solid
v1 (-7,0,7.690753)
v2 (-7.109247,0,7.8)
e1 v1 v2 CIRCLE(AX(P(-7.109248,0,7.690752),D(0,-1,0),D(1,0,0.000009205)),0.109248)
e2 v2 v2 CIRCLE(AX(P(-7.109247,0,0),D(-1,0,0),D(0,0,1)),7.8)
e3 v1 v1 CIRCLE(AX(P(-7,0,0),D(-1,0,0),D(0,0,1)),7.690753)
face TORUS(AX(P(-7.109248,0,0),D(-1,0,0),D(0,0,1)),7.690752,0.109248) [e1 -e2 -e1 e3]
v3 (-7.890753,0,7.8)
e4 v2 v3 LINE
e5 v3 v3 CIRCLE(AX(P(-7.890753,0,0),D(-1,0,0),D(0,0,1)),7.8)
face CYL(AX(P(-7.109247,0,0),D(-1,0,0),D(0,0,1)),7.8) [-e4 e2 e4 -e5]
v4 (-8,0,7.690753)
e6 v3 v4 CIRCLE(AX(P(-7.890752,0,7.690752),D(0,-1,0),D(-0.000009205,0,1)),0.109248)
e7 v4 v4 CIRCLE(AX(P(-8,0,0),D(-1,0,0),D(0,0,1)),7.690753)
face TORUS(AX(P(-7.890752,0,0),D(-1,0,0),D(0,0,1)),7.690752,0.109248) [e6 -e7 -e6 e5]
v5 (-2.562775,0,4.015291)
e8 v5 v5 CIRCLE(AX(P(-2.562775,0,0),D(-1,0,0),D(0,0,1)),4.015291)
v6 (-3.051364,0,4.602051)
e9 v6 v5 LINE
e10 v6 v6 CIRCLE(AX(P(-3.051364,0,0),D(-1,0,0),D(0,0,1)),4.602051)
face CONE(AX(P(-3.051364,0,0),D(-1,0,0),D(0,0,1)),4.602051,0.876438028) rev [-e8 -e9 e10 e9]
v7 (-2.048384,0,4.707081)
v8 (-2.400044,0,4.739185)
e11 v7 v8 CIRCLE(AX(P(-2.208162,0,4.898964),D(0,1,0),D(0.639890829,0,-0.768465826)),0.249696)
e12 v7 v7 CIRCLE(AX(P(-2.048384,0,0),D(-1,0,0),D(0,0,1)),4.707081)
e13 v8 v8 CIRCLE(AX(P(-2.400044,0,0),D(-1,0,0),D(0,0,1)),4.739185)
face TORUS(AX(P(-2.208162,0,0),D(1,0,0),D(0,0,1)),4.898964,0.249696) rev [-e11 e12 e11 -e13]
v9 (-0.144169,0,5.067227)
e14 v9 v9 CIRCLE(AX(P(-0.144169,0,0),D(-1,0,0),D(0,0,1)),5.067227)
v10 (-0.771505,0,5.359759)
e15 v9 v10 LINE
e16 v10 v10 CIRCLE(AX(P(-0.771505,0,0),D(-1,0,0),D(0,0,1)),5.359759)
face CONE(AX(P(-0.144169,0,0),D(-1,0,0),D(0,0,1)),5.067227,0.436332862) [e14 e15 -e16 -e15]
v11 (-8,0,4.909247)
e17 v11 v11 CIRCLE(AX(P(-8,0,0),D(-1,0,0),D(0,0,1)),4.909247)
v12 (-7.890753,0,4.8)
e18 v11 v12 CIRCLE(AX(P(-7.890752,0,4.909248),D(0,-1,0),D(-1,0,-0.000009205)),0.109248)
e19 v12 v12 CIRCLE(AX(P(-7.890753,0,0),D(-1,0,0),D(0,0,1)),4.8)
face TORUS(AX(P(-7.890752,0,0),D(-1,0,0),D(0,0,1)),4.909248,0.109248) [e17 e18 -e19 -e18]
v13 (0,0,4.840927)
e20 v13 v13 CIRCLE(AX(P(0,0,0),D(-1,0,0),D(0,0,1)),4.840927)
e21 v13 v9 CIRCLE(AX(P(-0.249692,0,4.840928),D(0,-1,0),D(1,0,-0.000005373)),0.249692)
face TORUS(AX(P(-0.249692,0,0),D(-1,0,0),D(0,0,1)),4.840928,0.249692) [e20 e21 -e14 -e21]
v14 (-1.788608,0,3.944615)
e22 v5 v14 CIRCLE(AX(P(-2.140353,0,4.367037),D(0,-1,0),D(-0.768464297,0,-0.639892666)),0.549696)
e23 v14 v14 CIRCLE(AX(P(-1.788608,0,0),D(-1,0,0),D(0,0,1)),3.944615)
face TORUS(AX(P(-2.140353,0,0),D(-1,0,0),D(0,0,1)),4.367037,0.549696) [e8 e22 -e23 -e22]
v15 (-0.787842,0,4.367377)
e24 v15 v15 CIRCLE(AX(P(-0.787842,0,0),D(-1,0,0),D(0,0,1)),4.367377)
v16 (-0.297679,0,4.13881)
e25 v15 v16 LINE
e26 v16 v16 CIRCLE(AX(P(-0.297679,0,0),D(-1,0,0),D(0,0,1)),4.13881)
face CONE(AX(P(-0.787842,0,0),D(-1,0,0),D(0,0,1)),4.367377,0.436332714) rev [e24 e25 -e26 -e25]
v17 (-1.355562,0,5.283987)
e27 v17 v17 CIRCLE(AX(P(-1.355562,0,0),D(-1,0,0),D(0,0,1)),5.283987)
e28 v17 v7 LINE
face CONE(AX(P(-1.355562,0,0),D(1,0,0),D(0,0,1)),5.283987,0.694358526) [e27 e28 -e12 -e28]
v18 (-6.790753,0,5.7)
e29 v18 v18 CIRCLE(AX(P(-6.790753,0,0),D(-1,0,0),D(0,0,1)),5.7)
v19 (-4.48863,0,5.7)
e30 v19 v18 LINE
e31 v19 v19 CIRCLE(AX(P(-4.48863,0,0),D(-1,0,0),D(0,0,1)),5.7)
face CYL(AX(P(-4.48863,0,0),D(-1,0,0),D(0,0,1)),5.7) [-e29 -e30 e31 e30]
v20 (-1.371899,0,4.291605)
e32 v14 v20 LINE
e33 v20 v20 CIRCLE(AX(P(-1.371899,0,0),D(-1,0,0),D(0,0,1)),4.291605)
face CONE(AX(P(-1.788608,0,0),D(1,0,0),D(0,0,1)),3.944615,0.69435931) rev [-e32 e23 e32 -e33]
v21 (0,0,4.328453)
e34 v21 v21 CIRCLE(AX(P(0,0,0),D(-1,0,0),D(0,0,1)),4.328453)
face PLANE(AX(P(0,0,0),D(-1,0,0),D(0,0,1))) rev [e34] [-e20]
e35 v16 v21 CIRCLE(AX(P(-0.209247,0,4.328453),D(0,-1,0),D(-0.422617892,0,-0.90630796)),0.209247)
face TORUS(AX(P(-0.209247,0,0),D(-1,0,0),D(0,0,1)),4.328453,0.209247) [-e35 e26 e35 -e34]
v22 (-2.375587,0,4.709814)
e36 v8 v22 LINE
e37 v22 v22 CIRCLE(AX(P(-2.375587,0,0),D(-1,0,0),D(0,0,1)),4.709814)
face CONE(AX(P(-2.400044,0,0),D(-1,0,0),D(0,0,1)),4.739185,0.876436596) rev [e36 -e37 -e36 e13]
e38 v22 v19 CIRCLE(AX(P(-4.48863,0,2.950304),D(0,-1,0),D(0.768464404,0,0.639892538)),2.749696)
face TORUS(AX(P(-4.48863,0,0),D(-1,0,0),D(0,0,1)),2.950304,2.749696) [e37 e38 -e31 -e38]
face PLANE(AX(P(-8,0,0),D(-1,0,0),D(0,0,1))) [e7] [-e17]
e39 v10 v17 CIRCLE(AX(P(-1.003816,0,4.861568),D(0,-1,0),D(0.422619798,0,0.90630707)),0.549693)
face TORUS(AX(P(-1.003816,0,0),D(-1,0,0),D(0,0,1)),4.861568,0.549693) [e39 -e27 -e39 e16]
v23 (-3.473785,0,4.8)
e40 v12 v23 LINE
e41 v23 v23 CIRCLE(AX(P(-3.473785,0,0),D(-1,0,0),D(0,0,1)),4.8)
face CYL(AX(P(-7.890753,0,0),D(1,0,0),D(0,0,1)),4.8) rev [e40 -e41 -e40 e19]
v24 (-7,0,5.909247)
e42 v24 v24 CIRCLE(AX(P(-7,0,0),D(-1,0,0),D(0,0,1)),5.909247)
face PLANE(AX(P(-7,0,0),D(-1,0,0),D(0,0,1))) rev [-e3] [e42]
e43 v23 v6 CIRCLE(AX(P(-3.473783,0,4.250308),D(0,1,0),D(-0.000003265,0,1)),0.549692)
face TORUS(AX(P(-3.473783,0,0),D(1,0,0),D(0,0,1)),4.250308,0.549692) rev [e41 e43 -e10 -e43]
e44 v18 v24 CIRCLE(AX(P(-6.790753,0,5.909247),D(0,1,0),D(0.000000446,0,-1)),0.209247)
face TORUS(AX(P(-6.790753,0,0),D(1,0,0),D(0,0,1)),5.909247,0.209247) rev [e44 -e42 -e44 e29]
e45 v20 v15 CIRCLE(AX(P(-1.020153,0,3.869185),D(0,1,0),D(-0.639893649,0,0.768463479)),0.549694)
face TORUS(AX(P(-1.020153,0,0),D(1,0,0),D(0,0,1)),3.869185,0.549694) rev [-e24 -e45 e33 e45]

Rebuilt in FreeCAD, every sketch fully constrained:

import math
import FreeCAD as App
import Part
import Sketcher

V = App.Vector
Q = App.Units.Quantity

doc = App.newDocument("Part")
body = doc.addObject("PartDesign::Body", "Body")

# Sketch on XZ plane
sketch1 = body.newObject("Sketcher::SketchObject", "Sketch")
sketch1.AttachmentSupport = (doc.getObject("XZ_Plane"), [""])
sketch1.MapMode = "FlatFace"
sketch1.addGeometry(Part.ArcOfCircle(Part.Circle(V(-0.249692, 4.840928, 0), V(0, 0, 1), 0.249692), math.radians(-0.000308), math.radians(65.000308)), False)
sketch1.addGeometry(Part.LineSegment(V(-0.144169, 5.067227, 0), V(-0.771505, 5.359759, 0)), False)
sketch1.addGeometry(Part.ArcOfCircle(Part.Circle(V(-1.003816, 4.861568, 0), V(0, 0, 1), 0.549693), math.radians(64.999903), math.radians(129.783936)), False)
sketch1.addGeometry(Part.LineSegment(V(-1.355562, 5.283987, 0), V(-2.048384, 4.707081, 0)), False)
sketch1.addGeometry(Part.ArcOfCircle(Part.Circle(V(-2.208162, 4.898964, 0), V(0, 0, 1), 0.249696), math.radians(-140.216137), math.radians(-50.216321)), False)
sketch1.addGeometry(Part.LineSegment(V(-2.400044, 4.739185, 0), V(-2.375587, 4.709814, 0)), False)
sketch1.addGeometry(Part.ArcOfCircle(Part.Circle(V(-4.48863, 2.950304, 0), V(0, 0, 1), 2.749696), math.radians(39.783807), math.radians(89.999992)), False)
sketch1.addGeometry(Part.LineSegment(V(-4.48863, 5.7, 0), V(-6.790753, 5.7, 0)), False)
sketch1.addGeometry(Part.ArcOfCircle(Part.Circle(V(-6.790753, 5.909247, 0), V(0, 0, 1), 0.209247), math.radians(179.999975), math.radians(270.000025)), False)
sketch1.addGeometry(Part.LineSegment(V(-7, 5.909247, 0), V(-7, 7.690753, 0)), False)
sketch1.addGeometry(Part.ArcOfCircle(Part.Circle(V(-7.109248, 7.690752, 0), V(0, 0, 1), 0.109248), math.radians(0.000528), math.radians(89.999472)), False)
sketch1.addGeometry(Part.LineSegment(V(-7.109247, 7.8, 0), V(-7.890753, 7.8, 0)), False)
sketch1.addGeometry(Part.ArcOfCircle(Part.Circle(V(-7.890752, 7.690752, 0), V(0, 0, 1), 0.109248), math.radians(90.000528), math.radians(179.999472)), False)
sketch1.addGeometry(Part.LineSegment(V(-8, 7.690753, 0), V(-8, 4.909247, 0)), False)
sketch1.addGeometry(Part.ArcOfCircle(Part.Circle(V(-7.890752, 4.909248, 0), V(0, 0, 1), 0.109248), math.radians(-179.999472), math.radians(-90.000528)), False)
sketch1.addGeometry(Part.LineSegment(V(-7.890753, 4.8, 0), V(-3.473785, 4.8, 0)), False)
sketch1.addGeometry(Part.ArcOfCircle(Part.Circle(V(-3.473783, 4.250308, 0), V(0, 0, 1), 0.549692), math.radians(39.783676), math.radians(90.000187)), False)
sketch1.addGeometry(Part.LineSegment(V(-3.051364, 4.602051, 0), V(-2.562775, 4.015291, 0)), False)
sketch1.addGeometry(Part.ArcOfCircle(Part.Circle(V(-2.140353, 4.367037, 0), V(0, 0, 1), 0.549696), math.radians(-140.216184), math.radians(-50.216301)), False)
sketch1.addGeometry(Part.LineSegment(V(-1.788608, 3.944615, 0), V(-1.371899, 4.291605, 0)), False)
sketch1.addGeometry(Part.ArcOfCircle(Part.Circle(V(-1.020153, 3.869185, 0), V(0, 0, 1), 0.549694), math.radians(64.999949), math.radians(129.78389)), False)
sketch1.addGeometry(Part.LineSegment(V(-0.787842, 4.367377, 0), V(-0.297679, 4.13881, 0)), False)
sketch1.addGeometry(Part.ArcOfCircle(Part.Circle(V(-0.209247, 4.328453, 0), V(0, 0, 1), 0.209247), math.radians(-114.999977), math.radians(0.00013)), False)
sketch1.addGeometry(Part.LineSegment(V(0, 4.328453, 0), V(0, 4.840927, 0)), False)
sketch1.addConstraint(Sketcher.Constraint("Coincident", 0, 2, 1, 1))
sketch1.addConstraint(Sketcher.Constraint("Tangent", 1, 2, 2, 1))
sketch1.addConstraint(Sketcher.Constraint("Coincident", 2, 2, 3, 1))
sketch1.addConstraint(Sketcher.Constraint("Coincident", 3, 2, 4, 2))
sketch1.addConstraint(Sketcher.Constraint("Tangent", 4, 1, 5, 1))
sketch1.addConstraint(Sketcher.Constraint("Tangent", 5, 2, 6, 1))
sketch1.addConstraint(Sketcher.Constraint("Tangent", 6, 2, 7, 1))
sketch1.addConstraint(Sketcher.Constraint("Tangent", 7, 2, 8, 2))
sketch1.addConstraint(Sketcher.Constraint("Tangent", 8, 1, 9, 1))
sketch1.addConstraint(Sketcher.Constraint("Coincident", 9, 2, 10, 1))
sketch1.addConstraint(Sketcher.Constraint("Coincident", 10, 2, 11, 1))
sketch1.addConstraint(Sketcher.Constraint("Coincident", 11, 2, 12, 1))
sketch1.addConstraint(Sketcher.Constraint("Coincident", 12, 2, 13, 1))
sketch1.addConstraint(Sketcher.Constraint("Coincident", 13, 2, 14, 1))
sketch1.addConstraint(Sketcher.Constraint("Coincident", 14, 2, 15, 1))
sketch1.addConstraint(Sketcher.Constraint("Coincident", 15, 2, 16, 2))
sketch1.addConstraint(Sketcher.Constraint("Coincident", 16, 1, 17, 1))
sketch1.addConstraint(Sketcher.Constraint("Tangent", 17, 2, 18, 1))
sketch1.addConstraint(Sketcher.Constraint("Coincident", 18, 2, 19, 1))
sketch1.addConstraint(Sketcher.Constraint("Tangent", 19, 2, 20, 2))
sketch1.addConstraint(Sketcher.Constraint("Tangent", 20, 1, 21, 1))
sketch1.addConstraint(Sketcher.Constraint("Tangent", 21, 2, 22, 1))
sketch1.addConstraint(Sketcher.Constraint("Coincident", 22, 2, 23, 1))
sketch1.addConstraint(Sketcher.Constraint("Coincident", 23, 2, 0, 1))
sketch1.addConstraint(Sketcher.Constraint("Horizontal", 7))
sketch1.addConstraint(Sketcher.Constraint("Vertical", 9))
sketch1.addConstraint(Sketcher.Constraint("Horizontal", 11))
sketch1.addConstraint(Sketcher.Constraint("Vertical", 13))
sketch1.addConstraint(Sketcher.Constraint("Horizontal", 15))
sketch1.addConstraint(Sketcher.Constraint("Vertical", 23))
sketch1.addConstraint(Sketcher.Constraint("Equal", 10, 12))
sketch1.addConstraint(Sketcher.Constraint("Equal", 12, 14))
sketch1.addConstraint(Sketcher.Constraint("Equal", 2, 16))
sketch1.addConstraint(Sketcher.Constraint("Equal", 18, 20))
sketch1.addConstraint(Sketcher.Constraint("Equal", 8, 22))
sketch1.addConstraint(Sketcher.Constraint("PointOnObject", 22, 2, -2))
sketch1.addConstraint(Sketcher.Constraint("Perpendicular", 3, 5))
sketch1.addConstraint(Sketcher.Constraint("Parallel", 5, 17))
sketch1.addConstraint(Sketcher.Constraint("Perpendicular", 17, 19))
sketch1.addConstraint(Sketcher.Constraint("Parallel", 1, 21))
sketch1.addConstraint(Sketcher.Constraint("Horizontal", 12, 3, 9, 2))
sketch1.addConstraint(Sketcher.Constraint("Horizontal", 9, 2, 12, 2))
sketch1.addConstraint(Sketcher.Constraint("Horizontal", 14, 3, 13, 2))
sketch1.addConstraint(Sketcher.Constraint("Horizontal", 0, 3, 23, 2))
sketch1.addConstraint(Sketcher.Constraint("Vertical", 14, 3, 11, 2))
sketch1.addConstraint(Sketcher.Constraint("Vertical", 11, 2, 14, 2))
sketch1.addConstraint(Sketcher.Constraint("Vertical", 16, 3, 15, 2))
sketch1.addConstraint(Sketcher.Constraint("DistanceX", 8, 1, -1, 1, Q("7 mm")))
sketch1.addConstraint(Sketcher.Constraint("DistanceX", 12, 2, -1, 1, Q("8 mm")))
sketch1.addConstraint(Sketcher.Constraint("DistanceY", 14, 3, 8, 3, Q("0.999999 mm")))
sketch1.addConstraint(Sketcher.Constraint("DistanceY", -1, 1, 6, 2, Q("5.7 mm")))
sketch1.addConstraint(Sketcher.Constraint("DistanceY", -1, 1, 10, 2, Q("7.8 mm")))
sketch1.addConstraint(Sketcher.Constraint("DistanceY", -1, 1, 14, 2, Q("4.8 mm")))
sketch1.addConstraint(Sketcher.Constraint("Radius", 10, Q("0.109248 mm")))
sketch1.addConstraint(Sketcher.Constraint("Radius", 16, Q("0.549692 mm")))
sketch1.addConstraint(Sketcher.Constraint("Radius", 0, Q("0.249692 mm")))
sketch1.addConstraint(Sketcher.Constraint("Radius", 4, Q("0.249696 mm")))
sketch1.addConstraint(Sketcher.Constraint("Radius", 6, Q("2.749696 mm")))
sketch1.addConstraint(Sketcher.Constraint("Radius", 18, Q("0.549696 mm")))
sketch1.addConstraint(Sketcher.Constraint("DistanceX", 15, 1, 15, 2, Q("4.416968 mm")))
sketch1.addConstraint(Sketcher.Constraint("DistanceX", 19, 2, -1, 1, Q("1.371899 mm")))
sketch1.addConstraint(Sketcher.Constraint("DistanceX", 18, 3, 20, 3, Q("1.1202 mm")))
sketch1.addConstraint(Sketcher.Constraint("DistanceY", 0, 3, 0, 2, Q("0.226299 mm")))
sketch1.addConstraint(Sketcher.Constraint("DistanceX", 4, 3, 2, 2, Q("0.8526 mm")))
sketch1.addConstraint(Sketcher.Constraint("DistanceY", 4, 1, 2, 2, Q("0.544802 mm")))
sketch1.addConstraint(Sketcher.Constraint("DistanceY", 18, 2, 5, 2, Q("0.765199 mm")))
sketch1.addConstraint(Sketcher.Constraint("Distance", 1, Q("0.692189 mm")))
sketch1.addConstraint(Sketcher.Constraint("Distance", 5, Q("0.03822 mm")))
sketch1.addConstraint(Sketcher.Constraint("Distance", 17, Q("0.763549 mm")))
sketch1.addConstraint(Sketcher.Constraint("DistanceX", 7, 2, 7, 1, Q("2.302123 mm")))
sketch1.addConstraint(Sketcher.Constraint("DistanceX", 11, 2, 11, 1, Q("0.781506 mm")))
sketch1.addConstraint(Sketcher.Constraint("DistanceY", 23, 1, 23, 2, Q("0.512474 mm")))
sketch1.addConstraint(Sketcher.Constraint("DistanceY", -1, 1, 0, 3, Q("4.840928 mm")))
sketch1.addConstraint(Sketcher.Constraint("DistanceY", -1, 1, 3, 2, Q("4.707081 mm")))
revolution = body.newObject("PartDesign::Revolution", "Revolution")
revolution.Profile = sketch1
revolution.ReferenceAxis = (sketch1, ["H_Axis"])
revolution.Angle = 360

doc.recompute()
